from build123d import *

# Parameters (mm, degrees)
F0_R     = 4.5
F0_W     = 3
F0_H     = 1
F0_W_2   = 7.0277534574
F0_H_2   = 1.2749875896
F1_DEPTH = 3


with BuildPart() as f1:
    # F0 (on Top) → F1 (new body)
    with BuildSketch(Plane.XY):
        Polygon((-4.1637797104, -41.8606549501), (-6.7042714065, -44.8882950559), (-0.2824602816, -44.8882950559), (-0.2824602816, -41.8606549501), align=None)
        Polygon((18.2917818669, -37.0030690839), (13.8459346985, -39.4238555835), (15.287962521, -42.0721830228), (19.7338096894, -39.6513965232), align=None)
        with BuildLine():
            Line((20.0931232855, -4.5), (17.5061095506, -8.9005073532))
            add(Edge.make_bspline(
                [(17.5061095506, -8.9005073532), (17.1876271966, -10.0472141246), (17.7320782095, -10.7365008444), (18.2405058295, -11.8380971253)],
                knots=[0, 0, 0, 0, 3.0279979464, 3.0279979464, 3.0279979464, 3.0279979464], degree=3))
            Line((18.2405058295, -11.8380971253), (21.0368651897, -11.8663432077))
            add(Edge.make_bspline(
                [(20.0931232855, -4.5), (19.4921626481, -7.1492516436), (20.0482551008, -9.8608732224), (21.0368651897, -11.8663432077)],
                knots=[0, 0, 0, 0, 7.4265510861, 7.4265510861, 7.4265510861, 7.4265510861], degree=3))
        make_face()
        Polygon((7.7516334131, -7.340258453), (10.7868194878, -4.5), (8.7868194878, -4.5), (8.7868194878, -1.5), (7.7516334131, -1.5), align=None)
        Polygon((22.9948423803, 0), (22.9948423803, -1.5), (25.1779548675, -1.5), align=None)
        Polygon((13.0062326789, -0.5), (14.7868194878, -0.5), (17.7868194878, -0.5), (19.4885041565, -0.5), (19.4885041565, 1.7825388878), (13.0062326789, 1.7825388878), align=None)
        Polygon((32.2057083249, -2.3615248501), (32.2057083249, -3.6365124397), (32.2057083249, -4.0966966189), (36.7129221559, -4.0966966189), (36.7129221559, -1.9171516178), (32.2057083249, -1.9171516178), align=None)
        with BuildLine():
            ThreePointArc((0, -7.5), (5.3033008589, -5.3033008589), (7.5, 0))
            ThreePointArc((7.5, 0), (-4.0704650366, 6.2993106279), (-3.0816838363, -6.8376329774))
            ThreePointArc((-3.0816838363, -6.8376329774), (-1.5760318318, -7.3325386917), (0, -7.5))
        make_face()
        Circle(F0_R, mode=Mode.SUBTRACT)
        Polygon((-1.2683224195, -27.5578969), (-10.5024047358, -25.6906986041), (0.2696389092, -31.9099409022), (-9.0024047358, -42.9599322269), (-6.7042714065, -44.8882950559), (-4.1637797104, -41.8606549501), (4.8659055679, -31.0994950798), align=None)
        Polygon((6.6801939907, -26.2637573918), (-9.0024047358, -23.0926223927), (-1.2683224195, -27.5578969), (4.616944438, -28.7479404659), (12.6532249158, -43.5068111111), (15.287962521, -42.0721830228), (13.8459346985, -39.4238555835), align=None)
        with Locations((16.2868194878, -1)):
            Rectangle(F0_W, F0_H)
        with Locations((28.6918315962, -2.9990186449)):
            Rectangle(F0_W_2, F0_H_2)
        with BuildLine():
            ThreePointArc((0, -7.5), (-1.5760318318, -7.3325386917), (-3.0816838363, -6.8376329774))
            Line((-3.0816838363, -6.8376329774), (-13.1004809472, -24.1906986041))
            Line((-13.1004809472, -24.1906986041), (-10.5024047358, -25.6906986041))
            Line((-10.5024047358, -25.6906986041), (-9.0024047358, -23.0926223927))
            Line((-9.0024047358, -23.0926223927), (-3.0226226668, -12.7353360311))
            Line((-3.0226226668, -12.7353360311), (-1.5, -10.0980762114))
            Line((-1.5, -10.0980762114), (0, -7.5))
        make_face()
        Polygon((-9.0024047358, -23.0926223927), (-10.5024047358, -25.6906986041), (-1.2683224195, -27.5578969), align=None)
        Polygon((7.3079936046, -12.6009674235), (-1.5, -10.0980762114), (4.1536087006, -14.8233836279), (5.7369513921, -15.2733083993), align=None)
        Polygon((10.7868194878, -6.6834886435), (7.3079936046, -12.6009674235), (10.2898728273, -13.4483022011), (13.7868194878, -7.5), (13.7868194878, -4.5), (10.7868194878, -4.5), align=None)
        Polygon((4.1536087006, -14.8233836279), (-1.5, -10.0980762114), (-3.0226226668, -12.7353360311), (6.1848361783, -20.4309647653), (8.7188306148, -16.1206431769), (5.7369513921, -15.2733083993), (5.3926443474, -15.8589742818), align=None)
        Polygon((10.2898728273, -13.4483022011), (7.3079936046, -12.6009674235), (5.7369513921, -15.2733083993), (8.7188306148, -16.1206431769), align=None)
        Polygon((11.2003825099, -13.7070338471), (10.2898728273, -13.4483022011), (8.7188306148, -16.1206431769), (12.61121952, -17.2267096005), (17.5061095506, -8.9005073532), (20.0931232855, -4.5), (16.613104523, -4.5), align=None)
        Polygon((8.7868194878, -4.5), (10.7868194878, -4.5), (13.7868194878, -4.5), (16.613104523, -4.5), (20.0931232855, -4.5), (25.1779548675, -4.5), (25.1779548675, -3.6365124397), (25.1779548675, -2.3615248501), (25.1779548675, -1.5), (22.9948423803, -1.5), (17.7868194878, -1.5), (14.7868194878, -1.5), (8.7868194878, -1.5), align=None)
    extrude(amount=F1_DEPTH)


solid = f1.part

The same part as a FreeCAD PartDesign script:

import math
import FreeCAD as App
import Part
import Sketcher
from FreeCAD import Vector

doc = App.newDocument("Part")
body = doc.addObject("PartDesign::Body", "Body")

# Sketch on XY plane
sketch1 = doc.addObject("Sketcher::SketchObject", "Sketch")
body.addObject(sketch1)
sketch1.AttachmentSupport = (doc.XY_Plane, [""])
sketch1.MapMode = "FlatFace"
sketch1.addGeometry(Part.LineSegment(Vector(6.184836, -20.430965, 0), Vector(8.718831, -16.120643, 0)), False)
sketch1.addGeometry(Part.LineSegment(Vector(8.718831, -16.120643, 0), Vector(12.61122, -17.22671, 0)), False)
sketch1.addGeometry(Part.LineSegment(Vector(12.61122, -17.22671, 0), Vector(17.50611, -8.900507, 0)), False)
sketch1.addGeometry(Part.BSplineCurve([Vector(17.50611, -8.900507, 0), Vector(17.187627, -10.047214, 0), Vector(17.732078, -10.736501, 0), Vector(18.240506, -11.838097, 0)], [4, 4], [0, 3.027997946], False, 3, [1, 1, 1, 1], False), False)
sketch1.addGeometry(Part.LineSegment(Vector(18.240506, -11.838097, 0), Vector(21.036865, -11.866343, 0)), False)
sketch1.addGeometry(Part.BSplineCurve([Vector(20.093123, -4.5, 0), Vector(19.492163, -7.149252, 0), Vector(20.048255, -9.860873, 0), Vector(21.036865, -11.866343, 0)], [4, 4], [0, 7.426551086], False, 3, [1, 1, 1, 1], False), False)
sketch1.addGeometry(Part.LineSegment(Vector(20.093123, -4.5, 0), Vector(25.177955, -4.5, 0)), False)
sketch1.addGeometry(Part.LineSegment(Vector(25.177955, -4.5, 0), Vector(25.177955, -3.636512, 0)), False)
sketch1.addGeometry(Part.LineSegment(Vector(25.177955, -3.636512, 0), Vector(32.205708, -3.636512, 0)), False)
sketch1.addGeometry(Part.LineSegment(Vector(32.205708, -3.636512, 0), Vector(32.205708, -4.096697, 0)), False)
sketch1.addGeometry(Part.LineSegment(Vector(32.205708, -4.096697, 0), Vector(36.712922, -4.096697, 0)), False)
sketch1.addGeometry(Part.LineSegment(Vector(36.712922, -4.096697, 0), Vector(36.712922, -1.917152, 0)), False)
sketch1.addGeometry(Part.LineSegment(Vector(36.712922, -1.917152, 0), Vector(32.205708, -1.917152, 0)), False)
sketch1.addGeometry(Part.LineSegment(Vector(32.205708, -1.917152, 0), Vector(32.205708, -2.361525, 0)), False)
sketch1.addGeometry(Part.LineSegment(Vector(32.205708, -2.361525, 0), Vector(25.177955, -2.361525, 0)), False)
sketch1.addGeometry(Part.LineSegment(Vector(25.177955, -2.361525, 0), Vector(25.177955, -1.5, 0)), False)
sketch1.addGeometry(Part.LineSegment(Vector(25.177955, -1.5, 0), Vector(22.994842, 0, 0)), False)
sketch1.addGeometry(Part.LineSegment(Vector(22.994842, 0, 0), Vector(22.994842, -1.5, 0)), False)
sketch1.addGeometry(Part.LineSegment(Vector(22.994842, -1.5, 0), Vector(17.786819, -1.5, 0)), False)
sketch1.addGeometry(Part.LineSegment(Vector(17.786819, -1.5, 0), Vector(17.786819, -0.5, 0)), False)
sketch1.addGeometry(Part.LineSegment(Vector(17.786819, -0.5, 0), Vector(19.488504, -0.5, 0)), False)
sketch1.addGeometry(Part.LineSegment(Vector(19.488504, -0.5, 0), Vector(19.488504, 1.782539, 0)), False)
sketch1.addGeometry(Part.LineSegment(Vector(19.488504, 1.782539, 0), Vector(13.006233, 1.782539, 0)), False)
sketch1.addGeometry(Part.LineSegment(Vector(13.006233, 1.782539, 0), Vector(13.006233, -0.5, 0)), False)
sketch1.addGeometry(Part.LineSegment(Vector(13.006233, -0.5, 0), Vector(14.786819, -0.5, 0)), False)
sketch1.addGeometry(Part.LineSegment(Vector(14.786819, -0.5, 0), Vector(14.786819, -1.5, 0)), False)
sketch1.addGeometry(Part.LineSegment(Vector(14.786819, -1.5, 0), Vector(7.751633, -1.5, 0)), False)
sketch1.addGeometry(Part.LineSegment(Vector(7.751633, -1.5, 0), Vector(7.751633, -7.340258, 0)), False)
sketch1.addGeometry(Part.LineSegment(Vector(7.751633, -7.340258, 0), Vector(10.786819, -4.5, 0)), False)
sketch1.addGeometry(Part.LineSegment(Vector(10.786819, -4.5, 0), Vector(10.786819, -6.683489, 0)), False)
sketch1.addGeometry(Part.LineSegment(Vector(10.786819, -6.683489, 0), Vector(7.307994, -12.600967, 0)), False)
sketch1.addGeometry(Part.LineSegment(Vector(7.307994, -12.600967, 0), Vector(-1.5, -10.098076, 0)), False)
sketch1.addGeometry(Part.LineSegment(Vector(-1.5, -10.098076, 0), Vector(0, -7.5, 0)), False)
sketch1.addGeometry(Part.ArcOfCircle(Part.Circle(Vector(0, 0, 0), Vector(0, 0, 1), 7.5), math.radians(-90), math.radians(0)), False)
sketch1.addGeometry(Part.ArcOfCircle(Part.Circle(Vector(0, 0, 0), Vector(0, 0, 1), 7.5), math.radians(0), math.radians(245.73917)), False)
sketch1.addGeometry(Part.LineSegment(Vector(-3.081684, -6.837633, 0), Vector(-13.100481, -24.190699, 0)), False)
sketch1.addGeometry(Part.LineSegment(Vector(-13.100481, -24.190699, 0), Vector(-10.502405, -25.690699, 0)), False)
sketch1.addGeometry(Part.LineSegment(Vector(-10.502405, -25.690699, 0), Vector(0.269639, -31.909941, 0)), False)
sketch1.addGeometry(Part.LineSegment(Vector(0.269639, -31.909941, 0), Vector(-9.002405, -42.959932, 0)), False)
sketch1.addGeometry(Part.LineSegment(Vector(-9.002405, -42.959932, 0), Vector(-6.704271, -44.888295, 0)), False)
sketch1.addGeometry(Part.LineSegment(Vector(-6.704271, -44.888295, 0), Vector(-0.28246, -44.888295, 0)), False)
sketch1.addGeometry(Part.LineSegment(Vector(-0.28246, -44.888295, 0), Vector(-0.28246, -41.860655, 0)), False)
sketch1.addGeometry(Part.LineSegment(Vector(-0.28246, -41.860655, 0), Vector(-4.16378, -41.860655, 0)), False)
sketch1.addGeometry(Part.LineSegment(Vector(-4.16378, -41.860655, 0), Vector(4.865906, -31.099495, 0)), False)
sketch1.addGeometry(Part.LineSegment(Vector(4.865906, -31.099495, 0), Vector(-1.268322, -27.557897, 0)), False)
sketch1.addGeometry(Part.LineSegment(Vector(-1.268322, -27.557897, 0), Vector(4.616944, -28.74794, 0)), False)
sketch1.addGeometry(Part.LineSegment(Vector(4.616944, -28.74794, 0), Vector(12.653225, -43.506811, 0)), False)
sketch1.addGeometry(Part.LineSegment(Vector(12.653225, -43.506811, 0), Vector(15.287963, -42.072183, 0)), False)
sketch1.addGeometry(Part.LineSegment(Vector(15.287963, -42.072183, 0), Vector(19.73381, -39.651397, 0)), False)
sketch1.addGeometry(Part.LineSegment(Vector(19.73381, -39.651397, 0), Vector(18.291782, -37.003069, 0)), False)
sketch1.addGeometry(Part.LineSegment(Vector(18.291782, -37.003069, 0), Vector(13.845935, -39.423856, 0)), False)
sketch1.addGeometry(Part.LineSegment(Vector(13.845935, -39.423856, 0), Vector(6.680194, -26.263757, 0)), False)
sketch1.addGeometry(Part.LineSegment(Vector(6.680194, -26.263757, 0), Vector(-9.002405, -23.092622, 0)), False)
sketch1.addGeometry(Part.LineSegment(Vector(-9.002405, -23.092622, 0), Vector(-3.022623, -12.735336, 0)), False)
sketch1.addGeometry(Part.LineSegment(Vector(-3.022623, -12.735336, 0), Vector(6.184836, -20.430965, 0)), False)
sketch1.addGeometry(Part.LineSegment(Vector(16.613105, -4.5, 0), Vector(11.200383, -13.707034, 0)), False)
sketch1.addGeometry(Part.LineSegment(Vector(11.200383, -13.707034, 0), Vector(10.289873, -13.448302, 0)), False)
sketch1.addGeometry(Part.LineSegment(Vector(10.289873, -13.448302, 0), Vector(13.786819, -7.5, 0)), False)
sketch1.addGeometry(Part.LineSegment(Vector(13.786819, -7.5, 0), Vector(13.786819, -4.5, 0)), False)
sketch1.addGeometry(Part.LineSegment(Vector(13.786819, -4.5, 0), Vector(16.613105, -4.5, 0)), False)
sketch1.addGeometry(Part.LineSegment(Vector(4.153609, -14.823384, 0), Vector(5.736951, -15.273308, 0)), False)
sketch1.addGeometry(Part.LineSegment(Vector(5.736951, -15.273308, 0), Vector(5.392644, -15.858974, 0)), False)
sketch1.addGeometry(Part.LineSegment(Vector(5.392644, -15.858974, 0), Vector(4.153609, -14.823384, 0)), False)
sketch1.addGeometry(Part.Circle(Vector(0, 0, 0), Vector(0, 0, 1), 4.5), False)
sketch1.addConstraint(Sketcher.Constraint("Block", 3))
sketch1.addConstraint(Sketcher.Constraint("Block", 5))
sketch1.addConstraint(Sketcher.Constraint("Coincident", 0, 2, 1, 1))
sketch1.addConstraint(Sketcher.Constraint("Coincident", 1, 2, 2, 1))
sketch1.addConstraint(Sketcher.Constraint("Coincident", 2, 2, 3, 1))
sketch1.addConstraint(Sketcher.Constraint("Coincident", 3, 2, 4, 1))
sketch1.addConstraint(Sketcher.Constraint("Coincident", 4, 2, 5, 2))
sketch1.addConstraint(Sketcher.Constraint("Coincident", 5, 1, 6, 1))
sketch1.addConstraint(Sketcher.Constraint("Coincident", 6, 2, 7, 1))
sketch1.addConstraint(Sketcher.Constraint("Coincident", 7, 2, 8, 1))
sketch1.addConstraint(Sketcher.Constraint("Coincident", 8, 2, 9, 1))
sketch1.addConstraint(Sketcher.Constraint("Coincident", 9, 2, 10, 1))
sketch1.addConstraint(Sketcher.Constraint("Coincident", 10, 2, 11, 1))
sketch1.addConstraint(Sketcher.Constraint("Coincident", 11, 2, 12, 1))
sketch1.addConstraint(Sketcher.Constraint("Coincident", 12, 2, 13, 1))
sketch1.addConstraint(Sketcher.Constraint("Coincident", 13, 2, 14, 1))
sketch1.addConstraint(Sketcher.Constraint("Coincident", 14, 2, 15, 1))
sketch1.addConstraint(Sketcher.Constraint("Coincident", 15, 2, 16, 1))
sketch1.addConstraint(Sketcher.Constraint("Coincident", 16, 2, 17, 1))
sketch1.addConstraint(Sketcher.Constraint("Coincident", 17, 2, 18, 1))
sketch1.addConstraint(Sketcher.Constraint("Coincident", 18, 2, 19, 1))
sketch1.addConstraint(Sketcher.Constraint("Coincident", 19, 2, 20, 1))
sketch1.addConstraint(Sketcher.Constraint("Coincident", 20, 2, 21, 1))
sketch1.addConstraint(Sketcher.Constraint("Coincident", 21, 2, 22, 1))
sketch1.addConstraint(Sketcher.Constraint("Coincident", 22, 2, 23, 1))
sketch1.addConstraint(Sketcher.Constraint("Coincident", 23, 2, 24, 1))
sketch1.addConstraint(Sketcher.Constraint("Coincident", 24, 2, 25, 1))
sketch1.addConstraint(Sketcher.Constraint("Coincident", 25, 2, 26, 1))
sketch1.addConstraint(Sketcher.Constraint("Coincident", 26, 2, 27, 1))
sketch1.addConstraint(Sketcher.Constraint("Coincident", 27, 2, 28, 1))
sketch1.addConstraint(Sketcher.Constraint("Coincident", 28, 2, 29, 1))
sketch1.addConstraint(Sketcher.Constraint("Coincident", 29, 2, 30, 1))
sketch1.addConstraint(Sketcher.Constraint("Coincident", 30, 2, 31, 1))
sketch1.addConstraint(Sketcher.Constraint("Coincident", 31, 2, 32, 1))
sketch1.addConstraint(Sketcher.Constraint("Coincident", 32, 2, 33, 1))
sketch1.addConstraint(Sketcher.Constraint("Coincident", 33, 2, 34, 1))
sketch1.addConstraint(Sketcher.Constraint("Coincident", 34, 2, 35, 1))
sketch1.addConstraint(Sketcher.Constraint("Coincident", 35, 2, 36, 1))
sketch1.addConstraint(Sketcher.Constraint("Coincident", 36, 2, 37, 1))
sketch1.addConstraint(Sketcher.Constraint("Coincident", 37, 2, 38, 1))
sketch1.addConstraint(Sketcher.Constraint("Coincident", 38, 2, 39, 1))
sketch1.addConstraint(Sketcher.Constraint("Coincident", 39, 2, 40, 1))
sketch1.addConstraint(Sketcher.Constraint("Coincident", 40, 2, 41, 1))
sketch1.addConstraint(Sketcher.Constraint("Coincident", 41, 2, 42, 1))
sketch1.addConstraint(Sketcher.Constraint("Coincident", 42, 2, 43, 1))
sketch1.addConstraint(Sketcher.Constraint("Coincident", 43, 2, 44, 1))
sketch1.addConstraint(Sketcher.Constraint("Coincident", 44, 2, 45, 1))
sketch1.addConstraint(Sketcher.Constraint("Coincident", 45, 2, 46, 1))
sketch1.addConstraint(Sketcher.Constraint("Coincident", 46, 2, 47, 1))
sketch1.addConstraint(Sketcher.Constraint("Coincident", 47, 2, 48, 1))
sketch1.addConstraint(Sketcher.Constraint("Coincident", 48, 2, 49, 1))
sketch1.addConstraint(Sketcher.Constraint("Coincident", 49, 2, 50, 1))
sketch1.addConstraint(Sketcher.Constraint("Coincident", 50, 2, 51, 1))
sketch1.addConstraint(Sketcher.Constraint("Coincident", 51, 2, 52, 1))
sketch1.addConstraint(Sketcher.Constraint("Coincident", 52, 2, 53, 1))
sketch1.addConstraint(Sketcher.Constraint("Coincident", 53, 2, 54, 1))
sketch1.addConstraint(Sketcher.Constraint("Coincident", 54, 2, 0, 1))
sketch1.addConstraint(Sketcher.Constraint("Coincident", 55, 2, 56, 1))
sketch1.addConstraint(Sketcher.Constraint("Coincident", 56, 2, 57, 1))
sketch1.addConstraint(Sketcher.Constraint("Coincident", 57, 2, 58, 1))
sketch1.addConstraint(Sketcher.Constraint("Coincident", 58, 2, 59, 1))
sketch1.addConstraint(Sketcher.Constraint("Coincident", 59, 2, 55, 1))
sketch1.addConstraint(Sketcher.Constraint("Coincident", 60, 2, 61, 1))
sketch1.addConstraint(Sketcher.Constraint("Coincident", 61, 2, 62, 1))
sketch1.addConstraint(Sketcher.Constraint("Coincident", 62, 2, 60, 1))
sketch1.addConstraint(Sketcher.Constraint("Horizontal", 6))
sketch1.addConstraint(Sketcher.Constraint("Vertical", 7))
sketch1.addConstraint(Sketcher.Constraint("Horizontal", 8))
sketch1.addConstraint(Sketcher.Constraint("Vertical", 9))
sketch1.addConstraint(Sketcher.Constraint("Horizontal", 10))
sketch1.addConstraint(Sketcher.Constraint("Vertical", 11))
sketch1.addConstraint(Sketcher.Constraint("Horizontal", 12))
sketch1.addConstraint(Sketcher.Constraint("Vertical", 13))
sketch1.addConstraint(Sketcher.Constraint("Horizontal", 14))
sketch1.addConstraint(Sketcher.Constraint("Vertical", 15))
sketch1.addConstraint(Sketcher.Constraint("Vertical", 17))
sketch1.addConstraint(Sketcher.Constraint("Horizontal", 18))
sketch1.addConstraint(Sketcher.Constraint("Vertical", 19))
sketch1.addConstraint(Sketcher.Constraint("Horizontal", 20))
sketch1.addConstraint(Sketcher.Constraint("Vertical", 21))
sketch1.addConstraint(Sketcher.Constraint("Horizontal", 22))
sketch1.addConstraint(Sketcher.Constraint("Vertical", 23))
sketch1.addConstraint(Sketcher.Constraint("Horizontal", 24))
sketch1.addConstraint(Sketcher.Constraint("Vertical", 25))
sketch1.addConstraint(Sketcher.Constraint("Horizontal", 26))
sketch1.addConstraint(Sketcher.Constraint("Vertical", 27))
sketch1.addConstraint(Sketcher.Constraint("Vertical", 29))
sketch1.addConstraint(Sketcher.Constraint("Horizontal", 40))
sketch1.addConstraint(Sketcher.Constraint("Vertical", 41))
sketch1.addConstraint(Sketcher.Constraint("Horizontal", 42))
sketch1.addConstraint(Sketcher.Constraint("Vertical", 58))
sketch1.addConstraint(Sketcher.Constraint("Horizontal", 59))
sketch1.addConstraint(Sketcher.Constraint("Coincident", 33, 3, -1, 1))
sketch1.addConstraint(Sketcher.Constraint("Coincident", 34, 3, -1, 1))
sketch1.addConstraint(Sketcher.Constraint("Coincident", 63, 3, -1, 1))
sketch1.addConstraint(Sketcher.Constraint("PointOnObject", 16, 2, -1))
sketch1.addConstraint(Sketcher.Constraint("PointOnObject", 32, 2, -2))
sketch1.addConstraint(Sketcher.Constraint("PointOnObject", 33, 2, -1))
sketch1.addConstraint(Sketcher.Constraint("Diameter", 63, 9.0))
sketch1.addConstraint(Sketcher.Constraint("Radius", 33, 7.5))
sketch1.addConstraint(Sketcher.Constraint("DistanceY", 19, 1, 19, 2, 1.0))
sketch1.addConstraint(Sketcher.Constraint("DistanceY", 25, 2, 25, 1, 1.0))
sketch1.addConstraint(Sketcher.Constraint("DistanceY", 58, 1, 58, 2, 3.0))
sketch1.addConstraint(Sketcher.Constraint("Distance", 0, 5.0))
sketch1.addConstraint(Sketcher.Constraint("Distance", 32, 3.0))
sketch1.addConstraint(Sketcher.Constraint("Distance", 36, 3.0))
sketch1.addConstraint(Sketcher.Constraint("Distance", 39, 3.0))
sketch1.addConstraint(Sketcher.Constraint("Distance", 47, 3.0))
sketch1.addConstraint(Sketcher.Constraint("Distance", 52, 16.0))
sketch1.addConstraint(Sketcher.Constraint("Distance", 54, 12.0))
sketch1.addConstraint(Sketcher.Constraint("DistanceY", 17, 2, 17, 1, 1.5))
sketch1.addConstraint(Sketcher.Constraint("DistanceY", 15, 2, -1, 1, 1.5))
sketch1.addConstraint(Sketcher.Constraint("DistanceY", 23, 2, -1, 1, 0.5))
sketch1.addConstraint(Sketcher.Constraint("DistanceY", 28, 2, -1, 1, 4.5))
sketch1.addConstraint(Sketcher.Constraint("DistanceX", 31, 2, -1, 1, 1.5))
sketch1.addConstraint(Sketcher.Constraint("DistanceY", 57, 2, -1, 1, 7.5))
sketch1.addConstraint(Sketcher.Constraint("DistanceX", 6, 1, 6, 2, 5.084832))
sketch1.addConstraint(Sketcher.Constraint("DistanceX", 22, 2, 22, 1, 6.482271))
sketch1.addConstraint(Sketcher.Constraint("DistanceX", 40, 1, 40, 2, 6.421811))
sketch1.addConstraint(Sketcher.Constraint("DistanceX", 42, 2, 42, 1, 3.881319))
sketch1.addConstraint(Sketcher.Constraint("DistanceY", 21, 1, 21, 2, 2.282539))
sketch1.addConstraint(Sketcher.Constraint("DistanceY", 27, 2, 27, 1, 5.840258))
sketch1.addConstraint(Sketcher.Constraint("DistanceY", 29, 2, 29, 1, 2.183489))
sketch1.addConstraint(Sketcher.Constraint("DistanceY", 41, 1, 41, 2, 3.02764))
sketch1.addConstraint(Sketcher.Constraint("DistanceY", 35, 2, -1, 1, 24.190699))
sketch1.addConstraint(Sketcher.Constraint("DistanceY", 36, 2, -1, 1, 25.690699))
sketch1.addConstraint(Sketcher.Constraint("Distance", 1, 4.046489))
sketch1.addConstraint(Sketcher.Constraint("Distance", 16, 2.64877))
sketch1.addConstraint(Sketcher.Constraint("Distance", 38, 14.424739))
sketch1.addConstraint(Sketcher.Constraint("Distance", 45, 6.004379))
sketch1.addConstraint(Sketcher.Constraint("Distance", 46, 16.804942))
sketch1.addConstraint(Sketcher.Constraint("Distance", 48, 5.06219))
sketch1.addConstraint(Sketcher.Constraint("Distance", 50, 5.06219))
sketch1.addConstraint(Sketcher.Constraint("DistanceX", 8, 1, 8, 2, 7.027753))
sketch1.addConstraint(Sketcher.Constraint("DistanceX", 10, 1, 10, 2, 4.507214))
sketch1.addConstraint(Sketcher.Constraint("DistanceX", 12, 2, 12, 1, 4.507214))
sketch1.addConstraint(Sketcher.Constraint("DistanceX", 14, 2, 14, 1, 7.027753))
sketch1.addConstraint(Sketcher.Constraint("DistanceX", 18, 2, 18, 1, 5.208023))
sketch1.addConstraint(Sketcher.Constraint("DistanceX", 20, 1, 20, 2, 1.701685))
sketch1.addConstraint(Sketcher.Constraint("DistanceX", 24, 1, 24, 2, 1.780587))
sketch1.addConstraint(Sketcher.Constraint("DistanceX", 26, 2, 26, 1, 7.035186))
sketch1.addConstraint(Sketcher.Constraint("DistanceX", 59, 1, 59, 2, 2.826285))
sketch1.addConstraint(Sketcher.Constraint("DistanceY", 7, 1, 7, 2, 0.863488))
sketch1.addConstraint(Sketcher.Constraint("DistanceY", 9, 2, 9, 1, 0.460184))
sketch1.addConstraint(Sketcher.Constraint("DistanceY", 11, 1, 11, 2, 2.179545))
sketch1.addConstraint(Sketcher.Constraint("DistanceY", 13, 2, 13, 1, 0.444373))
sketch1.addConstraint(Sketcher.Constraint("DistanceX", -1, 1, 0, 2, 8.718831))
sketch1.addConstraint(Sketcher.Constraint("DistanceX", -1, 1, 1, 2, 12.61122))
sketch1.addConstraint(Sketcher.Constraint("DistanceY", 1, 2, -1, 1, 17.22671))
sketch1.addConstraint(Sketcher.Constraint("DistanceX", -1, 1, 28, 2, 10.786819))
sketch1.addConstraint(Sketcher.Constraint("DistanceX", 35, 2, -1, 1, 13.100481))
sketch1.addConstraint(Sketcher.Constraint("DistanceX", -1, 1, 37, 2, 0.269639))
sketch1.addConstraint(Sketcher.Constraint("DistanceY", 37, 2, -1, 1, 31.909941))
sketch1.addConstraint(Sketcher.Constraint("DistanceX", 39, 2, -1, 1, 6.704271))
sketch1.addConstraint(Sketcher.Constraint("DistanceY", 45, 2, -1, 1, 28.74794))
sketch1.addConstraint(Sketcher.Constraint("DistanceY", 46, 2, -1, 1, 43.506811))
sketch1.addConstraint(Sketcher.Constraint("DistanceX", -1, 1, 48, 2, 19.73381))
sketch1.addConstraint(Sketcher.Constraint("DistanceX", -1, 1, 49, 2, 18.291782))
sketch1.addConstraint(Sketcher.Constraint("DistanceY", 49, 2, -1, 1, 37.003069))
sketch1.addConstraint(Sketcher.Constraint("DistanceX", -1, 1, 57, 2, 13.786819))
sketch1.addConstraint(Sketcher.Constraint("DistanceX", -1, 1, 60, 2, 5.736951))
sketch1.addConstraint(Sketcher.Constraint("DistanceY", 60, 2, -1, 1, 15.273308))
sketch1.addConstraint(Sketcher.Constraint("DistanceX", -1, 1, 62, 2, 4.153609))
sketch1.addConstraint(Sketcher.Constraint("Distance", 30, 6.864312))
sketch1.addConstraint(Sketcher.Constraint("Distance", 31, 9.156703))
sketch1.addConstraint(Sketcher.Constraint("Distance", 35, 20.037594))
sketch1.addConstraint(Sketcher.Constraint("Distance", 43, 14.047697))
sketch1.addConstraint(Sketcher.Constraint("Distance", 44, 7.083196))
sketch1.addConstraint(Sketcher.Constraint("Distance", 49, 3.015474))
sketch1.addConstraint(Sketcher.Constraint("Distance", 51, 14.984526))
sketch1.addConstraint(Sketcher.Constraint("Distance", 53, 11.959564))
sketch1.addConstraint(Sketcher.Constraint("Distance", 55, 10.680217))
sketch1.addConstraint(Sketcher.Constraint("Distance", 56, 0.946557))
sketch1.addConstraint(Sketcher.Constraint("Distance", 57, 6.900068))
sketch1.addConstraint(Sketcher.Constraint("Distance", 60, 1.646027))
sketch1.addConstraint(Sketcher.Constraint("Distance", 61, 0.679376))
sketch1.addConstraint(Sketcher.Constraint("Distance", 62, 1.614824))
sketch1.addConstraint(Sketcher.Constraint("DistanceX", 38, 2, -1, 1, 9.002405))
sketch1.addConstraint(Sketcher.Constraint("DistanceX", -1, 1, 43, 2, 4.865906))
sketch1.addConstraint(Sketcher.Constraint("DistanceX", -1, 1, 47, 2, 15.287963))
sketch1.addConstraint(Sketcher.Constraint("DistanceX", -1, 1, 50, 2, 13.845935))
sketch1.addConstraint(Sketcher.Constraint("DistanceX", -1, 1, 51, 2, 6.680194))
sketch1.addConstraint(Sketcher.Constraint("DistanceX", 52, 2, -1, 1, 9.002405))
sketch1.addConstraint(Sketcher.Constraint("DistanceX", 53, 2, -1, 1, 3.022623))
sketch1.addConstraint(Sketcher.Constraint("DistanceX", -1, 1, 55, 2, 11.200383))
pad1 = doc.addObject("PartDesign::Pad", "Pad")
body.addObject(pad1)
pad1.Profile = sketch1
pad1.Length = 3

doc.recompute()
